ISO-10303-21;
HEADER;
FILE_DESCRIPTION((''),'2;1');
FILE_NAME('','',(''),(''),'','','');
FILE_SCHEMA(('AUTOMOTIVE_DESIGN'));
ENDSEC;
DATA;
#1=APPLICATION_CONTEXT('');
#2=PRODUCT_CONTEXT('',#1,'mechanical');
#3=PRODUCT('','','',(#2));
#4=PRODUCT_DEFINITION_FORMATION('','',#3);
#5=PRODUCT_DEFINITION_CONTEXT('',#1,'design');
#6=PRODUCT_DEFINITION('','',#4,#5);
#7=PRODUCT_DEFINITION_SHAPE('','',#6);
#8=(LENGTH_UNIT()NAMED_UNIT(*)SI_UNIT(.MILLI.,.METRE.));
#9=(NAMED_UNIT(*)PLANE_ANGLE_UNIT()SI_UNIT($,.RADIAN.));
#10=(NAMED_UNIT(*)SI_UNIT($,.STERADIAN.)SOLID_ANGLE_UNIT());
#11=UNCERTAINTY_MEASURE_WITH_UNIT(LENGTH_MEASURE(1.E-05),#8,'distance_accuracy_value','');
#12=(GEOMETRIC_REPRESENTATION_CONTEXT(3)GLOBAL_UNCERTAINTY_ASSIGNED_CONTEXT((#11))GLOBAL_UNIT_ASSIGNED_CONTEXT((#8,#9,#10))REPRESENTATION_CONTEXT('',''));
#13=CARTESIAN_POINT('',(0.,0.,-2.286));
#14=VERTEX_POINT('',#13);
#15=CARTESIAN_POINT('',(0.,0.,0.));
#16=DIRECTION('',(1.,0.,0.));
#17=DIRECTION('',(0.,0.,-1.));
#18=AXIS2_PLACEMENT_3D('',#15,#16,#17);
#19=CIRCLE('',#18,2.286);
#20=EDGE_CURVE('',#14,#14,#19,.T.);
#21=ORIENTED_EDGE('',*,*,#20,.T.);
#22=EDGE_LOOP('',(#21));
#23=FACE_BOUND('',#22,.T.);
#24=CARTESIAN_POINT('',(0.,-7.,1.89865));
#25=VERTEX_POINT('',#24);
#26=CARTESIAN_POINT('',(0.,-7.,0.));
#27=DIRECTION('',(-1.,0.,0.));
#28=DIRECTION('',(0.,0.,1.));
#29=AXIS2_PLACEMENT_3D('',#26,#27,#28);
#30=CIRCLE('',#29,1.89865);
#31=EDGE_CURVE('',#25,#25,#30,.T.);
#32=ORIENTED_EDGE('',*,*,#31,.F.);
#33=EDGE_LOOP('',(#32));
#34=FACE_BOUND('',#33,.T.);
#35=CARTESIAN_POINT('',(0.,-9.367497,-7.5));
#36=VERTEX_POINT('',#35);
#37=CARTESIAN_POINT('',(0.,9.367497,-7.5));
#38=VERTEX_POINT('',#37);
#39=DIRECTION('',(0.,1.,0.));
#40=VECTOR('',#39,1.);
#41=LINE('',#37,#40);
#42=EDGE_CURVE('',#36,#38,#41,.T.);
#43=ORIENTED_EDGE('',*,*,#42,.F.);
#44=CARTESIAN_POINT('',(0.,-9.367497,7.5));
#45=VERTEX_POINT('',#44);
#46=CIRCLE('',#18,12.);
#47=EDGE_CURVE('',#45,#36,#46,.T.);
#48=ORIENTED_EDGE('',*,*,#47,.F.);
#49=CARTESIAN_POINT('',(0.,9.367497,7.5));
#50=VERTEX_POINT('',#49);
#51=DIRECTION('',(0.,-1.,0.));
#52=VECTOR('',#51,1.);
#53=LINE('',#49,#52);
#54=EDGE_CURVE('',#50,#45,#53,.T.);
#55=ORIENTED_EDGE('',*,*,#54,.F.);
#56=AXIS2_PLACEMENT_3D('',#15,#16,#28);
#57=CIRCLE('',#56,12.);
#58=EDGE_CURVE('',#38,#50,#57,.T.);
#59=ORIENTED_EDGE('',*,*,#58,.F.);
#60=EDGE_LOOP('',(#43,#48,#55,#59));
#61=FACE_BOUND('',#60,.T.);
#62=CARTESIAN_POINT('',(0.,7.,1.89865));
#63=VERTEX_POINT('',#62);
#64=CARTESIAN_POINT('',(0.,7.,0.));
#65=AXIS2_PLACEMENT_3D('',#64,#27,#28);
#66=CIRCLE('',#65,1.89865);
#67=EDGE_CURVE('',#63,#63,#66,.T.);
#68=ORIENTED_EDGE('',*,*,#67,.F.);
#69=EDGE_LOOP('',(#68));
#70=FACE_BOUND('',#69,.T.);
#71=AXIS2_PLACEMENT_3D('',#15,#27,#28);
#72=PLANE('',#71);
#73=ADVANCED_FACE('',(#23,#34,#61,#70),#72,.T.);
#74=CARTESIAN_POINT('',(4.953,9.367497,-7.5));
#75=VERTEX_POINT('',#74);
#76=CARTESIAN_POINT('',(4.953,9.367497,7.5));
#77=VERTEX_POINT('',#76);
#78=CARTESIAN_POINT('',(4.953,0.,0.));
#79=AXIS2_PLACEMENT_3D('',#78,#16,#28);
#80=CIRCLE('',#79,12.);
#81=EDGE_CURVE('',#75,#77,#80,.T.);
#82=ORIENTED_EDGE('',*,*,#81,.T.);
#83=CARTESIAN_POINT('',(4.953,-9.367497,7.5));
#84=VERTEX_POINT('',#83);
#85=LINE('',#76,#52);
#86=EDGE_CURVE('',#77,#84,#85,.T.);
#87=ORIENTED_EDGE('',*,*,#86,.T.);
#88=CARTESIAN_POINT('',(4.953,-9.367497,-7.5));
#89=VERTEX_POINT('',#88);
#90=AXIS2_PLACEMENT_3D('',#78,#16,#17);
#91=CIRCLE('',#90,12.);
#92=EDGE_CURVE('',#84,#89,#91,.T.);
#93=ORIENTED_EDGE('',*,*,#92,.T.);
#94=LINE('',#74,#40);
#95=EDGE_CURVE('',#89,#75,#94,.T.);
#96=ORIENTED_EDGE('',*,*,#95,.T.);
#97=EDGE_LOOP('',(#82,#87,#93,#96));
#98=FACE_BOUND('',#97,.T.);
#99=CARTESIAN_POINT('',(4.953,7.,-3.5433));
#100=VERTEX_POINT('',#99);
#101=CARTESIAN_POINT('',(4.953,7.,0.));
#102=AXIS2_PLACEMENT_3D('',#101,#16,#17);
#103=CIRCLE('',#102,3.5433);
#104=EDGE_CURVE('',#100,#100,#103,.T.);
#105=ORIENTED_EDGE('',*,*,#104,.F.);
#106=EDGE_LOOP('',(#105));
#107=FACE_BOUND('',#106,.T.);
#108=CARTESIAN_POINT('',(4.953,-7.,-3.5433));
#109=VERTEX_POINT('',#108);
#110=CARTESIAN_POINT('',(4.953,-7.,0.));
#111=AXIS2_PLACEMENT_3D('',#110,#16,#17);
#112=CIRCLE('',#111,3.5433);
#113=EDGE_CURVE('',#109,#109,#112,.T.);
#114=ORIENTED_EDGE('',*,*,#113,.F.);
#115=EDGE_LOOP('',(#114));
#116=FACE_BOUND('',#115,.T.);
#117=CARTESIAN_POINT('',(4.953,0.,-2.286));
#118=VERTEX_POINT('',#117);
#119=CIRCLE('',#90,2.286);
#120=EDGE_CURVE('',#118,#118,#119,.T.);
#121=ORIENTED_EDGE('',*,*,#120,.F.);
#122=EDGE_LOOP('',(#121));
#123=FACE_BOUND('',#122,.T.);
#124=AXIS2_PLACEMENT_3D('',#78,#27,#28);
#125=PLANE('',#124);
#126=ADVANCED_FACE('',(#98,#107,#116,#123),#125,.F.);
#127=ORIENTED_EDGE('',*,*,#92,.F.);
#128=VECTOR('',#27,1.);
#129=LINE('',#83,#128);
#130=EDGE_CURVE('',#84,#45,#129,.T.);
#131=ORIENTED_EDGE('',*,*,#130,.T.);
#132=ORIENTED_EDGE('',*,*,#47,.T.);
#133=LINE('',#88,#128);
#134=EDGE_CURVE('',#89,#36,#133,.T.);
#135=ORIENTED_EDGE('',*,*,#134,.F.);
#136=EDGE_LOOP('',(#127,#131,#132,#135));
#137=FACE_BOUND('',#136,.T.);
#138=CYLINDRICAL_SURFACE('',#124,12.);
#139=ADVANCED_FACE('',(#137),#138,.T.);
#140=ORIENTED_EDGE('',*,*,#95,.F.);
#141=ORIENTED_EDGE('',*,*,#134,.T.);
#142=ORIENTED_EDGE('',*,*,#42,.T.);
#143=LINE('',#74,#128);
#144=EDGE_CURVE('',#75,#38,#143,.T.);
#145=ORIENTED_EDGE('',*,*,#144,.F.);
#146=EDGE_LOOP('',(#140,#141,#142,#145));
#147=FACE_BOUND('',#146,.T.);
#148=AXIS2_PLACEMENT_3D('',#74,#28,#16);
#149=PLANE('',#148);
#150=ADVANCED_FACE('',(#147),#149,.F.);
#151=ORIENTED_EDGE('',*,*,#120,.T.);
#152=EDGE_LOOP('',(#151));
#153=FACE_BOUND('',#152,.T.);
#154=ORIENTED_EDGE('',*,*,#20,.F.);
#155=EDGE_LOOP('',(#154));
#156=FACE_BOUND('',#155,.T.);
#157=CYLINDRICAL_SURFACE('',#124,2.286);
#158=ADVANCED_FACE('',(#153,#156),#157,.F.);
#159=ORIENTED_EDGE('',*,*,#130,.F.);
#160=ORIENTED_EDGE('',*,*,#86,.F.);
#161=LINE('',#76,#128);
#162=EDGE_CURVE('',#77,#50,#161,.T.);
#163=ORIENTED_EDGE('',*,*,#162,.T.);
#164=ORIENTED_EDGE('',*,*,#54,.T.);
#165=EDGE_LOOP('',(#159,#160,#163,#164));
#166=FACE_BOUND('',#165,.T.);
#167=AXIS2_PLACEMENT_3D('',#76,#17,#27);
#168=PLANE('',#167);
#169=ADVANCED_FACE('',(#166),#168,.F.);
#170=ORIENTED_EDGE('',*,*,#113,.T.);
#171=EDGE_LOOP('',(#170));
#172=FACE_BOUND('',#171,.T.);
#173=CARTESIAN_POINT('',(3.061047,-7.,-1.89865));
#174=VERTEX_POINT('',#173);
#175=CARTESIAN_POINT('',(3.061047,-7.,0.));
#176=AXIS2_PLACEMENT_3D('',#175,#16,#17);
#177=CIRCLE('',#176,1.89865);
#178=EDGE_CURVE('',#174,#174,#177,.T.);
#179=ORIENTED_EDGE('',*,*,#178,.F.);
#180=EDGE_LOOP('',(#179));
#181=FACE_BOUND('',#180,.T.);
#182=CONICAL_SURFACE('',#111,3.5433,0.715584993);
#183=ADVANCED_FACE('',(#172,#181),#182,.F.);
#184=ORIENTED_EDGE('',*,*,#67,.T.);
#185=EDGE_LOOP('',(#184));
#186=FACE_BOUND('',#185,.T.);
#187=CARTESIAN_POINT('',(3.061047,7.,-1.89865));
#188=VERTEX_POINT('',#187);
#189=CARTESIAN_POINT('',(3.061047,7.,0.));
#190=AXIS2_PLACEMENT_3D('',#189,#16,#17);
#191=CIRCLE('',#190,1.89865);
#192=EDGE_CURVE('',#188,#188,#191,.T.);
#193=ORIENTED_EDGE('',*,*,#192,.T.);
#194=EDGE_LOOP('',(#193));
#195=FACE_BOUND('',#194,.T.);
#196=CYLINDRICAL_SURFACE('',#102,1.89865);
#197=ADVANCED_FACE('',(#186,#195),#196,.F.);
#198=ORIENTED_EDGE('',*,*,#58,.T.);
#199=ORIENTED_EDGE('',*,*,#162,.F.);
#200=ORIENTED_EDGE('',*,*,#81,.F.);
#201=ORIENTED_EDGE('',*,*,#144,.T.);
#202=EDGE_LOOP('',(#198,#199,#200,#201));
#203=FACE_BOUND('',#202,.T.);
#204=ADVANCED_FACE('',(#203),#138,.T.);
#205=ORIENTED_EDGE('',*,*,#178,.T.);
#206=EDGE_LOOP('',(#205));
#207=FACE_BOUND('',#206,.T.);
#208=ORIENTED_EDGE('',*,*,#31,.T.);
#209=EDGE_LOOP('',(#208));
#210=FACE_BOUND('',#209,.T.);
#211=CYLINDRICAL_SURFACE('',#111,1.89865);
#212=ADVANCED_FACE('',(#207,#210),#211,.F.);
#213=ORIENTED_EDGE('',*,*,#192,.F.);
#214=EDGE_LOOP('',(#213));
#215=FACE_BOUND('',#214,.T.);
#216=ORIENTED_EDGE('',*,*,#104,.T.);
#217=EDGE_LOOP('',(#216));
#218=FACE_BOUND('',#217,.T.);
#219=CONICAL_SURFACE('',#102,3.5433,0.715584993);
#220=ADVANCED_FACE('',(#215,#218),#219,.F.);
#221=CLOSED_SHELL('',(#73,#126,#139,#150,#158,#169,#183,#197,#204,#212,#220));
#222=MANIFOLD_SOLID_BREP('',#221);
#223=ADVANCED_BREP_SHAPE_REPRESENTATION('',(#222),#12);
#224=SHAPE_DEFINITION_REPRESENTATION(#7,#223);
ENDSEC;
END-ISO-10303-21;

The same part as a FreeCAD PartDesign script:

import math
import FreeCAD as App
import Part
import Sketcher

V = App.Vector
Q = App.Units.Quantity

doc = App.newDocument("Part")
body = doc.addObject("PartDesign::Body", "Body")

sketch1 = body.newObject("Sketcher::SketchObject", "Sketch")
sketch1.AttachmentSupport = (doc.getObject("YZ_Plane"), [""])
sketch1.MapMode = "FlatFace"
sketch1.addGeometry([
    Part.LineSegment(V(9.4, 7.5, 0), V(-9.4, 7.5, 0)),
    Part.ArcOfCircle(Part.Circle(V(0, 0, 0), V(0, 0, 1), 12), math.radians(141), math.radians(219)),
    Part.LineSegment(V(-9.4, -7.5, 0), V(9.4, -7.5, 0)),
    Part.ArcOfCircle(Part.Circle(V(0, 0, 0), V(0, 0, 1), 12), math.radians(-39), math.radians(39)),
    Part.Circle(V(-7, 0, 0), V(0, 0, 1), 1.7),
    Part.Circle(V(0, 0, 0), V(0, 0, 1), 2.3),
    Part.Circle(V(7, 0, 0), V(0, 0, 1), 1.7),
], False)
sketch1.addConstraint([
    Sketcher.Constraint("Coincident", 0, 2, 1, 1),
    Sketcher.Constraint("Coincident", 1, 2, 2, 1),
    Sketcher.Constraint("Coincident", 2, 2, 3, 1),
    Sketcher.Constraint("Coincident", 3, 2, 0, 1),
    Sketcher.Constraint("Horizontal", 0),
    Sketcher.Constraint("Horizontal", 2),
    Sketcher.Constraint("Coincident", 1, 3, -1, 1),
    Sketcher.Constraint("Coincident", 3, 3, -1, 1),
    Sketcher.Constraint("Coincident", 5, 3, -1, 1),
    Sketcher.Constraint("Equal", 1, 3),
    Sketcher.Constraint("Equal", 4, 6),
    Sketcher.Constraint("Symmetric", 4, 3, 6, 3, -1, 1),
    Sketcher.Constraint("PointOnObject", 4, 3, -1),
    Sketcher.Constraint("Vertical", 0, 2, 1, 2),
    Sketcher.Constraint("Diameter", 5, Q("0.18 in")),
    Sketcher.Constraint("Diameter", 4, Q("0.136 in")),
    Sketcher.Constraint("Radius", 1, 12.0),
    Sketcher.Constraint("DistanceX", 4, 3, -1, 1, 7.0),
    Sketcher.Constraint("DistanceY", -1, 1, 0, 2, 7.5),
])
pad1 = body.newObject("PartDesign::Pad", "Pad")
pad1.Profile = sketch1
pad1.Length = Q("0.195 in")

sketch2 = body.newObject("Sketcher::SketchObject", "Sketch001")
sketch2.AttachmentSupport = (doc.getObject("YZ_Plane"), [""])
sketch2.MapMode = "FlatFace"
sketch2.AttachmentOffset = App.Placement(V(0, 0, 0.195 * 25.4), App.Rotation())
sketch2.addGeometry([
    Part.Circle(V(-7, 0, 0), V(0, 0, 1), 1.9),
    Part.Circle(V(7, 0, 0), V(0, 0, 1), 1.9),
], False)
sketch2.addConstraint([
    Sketcher.Constraint("Equal", 0, 1),
    Sketcher.Constraint("Symmetric", 0, 3, 1, 3, -1, 1),
    Sketcher.Constraint("PointOnObject", 0, 3, -1),
    Sketcher.Constraint("Diameter", 0, Q("0.1495 in")),
    Sketcher.Constraint("DistanceX", 0, 3, -1, 1, 7.0),
])
doc.recompute()
hole = body.newObject("PartDesign::Hole", "Hole")
hole.Profile = sketch2
hole.ThreadType = "None"
hole.Diameter = Q("0.1495 in")
hole.DepthType = "Dimension"
hole.Depth = 10.973
hole.DrillPoint = "Angled"
hole.DrillPointAngle = 118
hole.HoleCutType = "Countersink"
hole.HoleCutDiameter = Q("0.279 in")
hole.HoleCutCountersinkAngle = 82

doc.recompute()
